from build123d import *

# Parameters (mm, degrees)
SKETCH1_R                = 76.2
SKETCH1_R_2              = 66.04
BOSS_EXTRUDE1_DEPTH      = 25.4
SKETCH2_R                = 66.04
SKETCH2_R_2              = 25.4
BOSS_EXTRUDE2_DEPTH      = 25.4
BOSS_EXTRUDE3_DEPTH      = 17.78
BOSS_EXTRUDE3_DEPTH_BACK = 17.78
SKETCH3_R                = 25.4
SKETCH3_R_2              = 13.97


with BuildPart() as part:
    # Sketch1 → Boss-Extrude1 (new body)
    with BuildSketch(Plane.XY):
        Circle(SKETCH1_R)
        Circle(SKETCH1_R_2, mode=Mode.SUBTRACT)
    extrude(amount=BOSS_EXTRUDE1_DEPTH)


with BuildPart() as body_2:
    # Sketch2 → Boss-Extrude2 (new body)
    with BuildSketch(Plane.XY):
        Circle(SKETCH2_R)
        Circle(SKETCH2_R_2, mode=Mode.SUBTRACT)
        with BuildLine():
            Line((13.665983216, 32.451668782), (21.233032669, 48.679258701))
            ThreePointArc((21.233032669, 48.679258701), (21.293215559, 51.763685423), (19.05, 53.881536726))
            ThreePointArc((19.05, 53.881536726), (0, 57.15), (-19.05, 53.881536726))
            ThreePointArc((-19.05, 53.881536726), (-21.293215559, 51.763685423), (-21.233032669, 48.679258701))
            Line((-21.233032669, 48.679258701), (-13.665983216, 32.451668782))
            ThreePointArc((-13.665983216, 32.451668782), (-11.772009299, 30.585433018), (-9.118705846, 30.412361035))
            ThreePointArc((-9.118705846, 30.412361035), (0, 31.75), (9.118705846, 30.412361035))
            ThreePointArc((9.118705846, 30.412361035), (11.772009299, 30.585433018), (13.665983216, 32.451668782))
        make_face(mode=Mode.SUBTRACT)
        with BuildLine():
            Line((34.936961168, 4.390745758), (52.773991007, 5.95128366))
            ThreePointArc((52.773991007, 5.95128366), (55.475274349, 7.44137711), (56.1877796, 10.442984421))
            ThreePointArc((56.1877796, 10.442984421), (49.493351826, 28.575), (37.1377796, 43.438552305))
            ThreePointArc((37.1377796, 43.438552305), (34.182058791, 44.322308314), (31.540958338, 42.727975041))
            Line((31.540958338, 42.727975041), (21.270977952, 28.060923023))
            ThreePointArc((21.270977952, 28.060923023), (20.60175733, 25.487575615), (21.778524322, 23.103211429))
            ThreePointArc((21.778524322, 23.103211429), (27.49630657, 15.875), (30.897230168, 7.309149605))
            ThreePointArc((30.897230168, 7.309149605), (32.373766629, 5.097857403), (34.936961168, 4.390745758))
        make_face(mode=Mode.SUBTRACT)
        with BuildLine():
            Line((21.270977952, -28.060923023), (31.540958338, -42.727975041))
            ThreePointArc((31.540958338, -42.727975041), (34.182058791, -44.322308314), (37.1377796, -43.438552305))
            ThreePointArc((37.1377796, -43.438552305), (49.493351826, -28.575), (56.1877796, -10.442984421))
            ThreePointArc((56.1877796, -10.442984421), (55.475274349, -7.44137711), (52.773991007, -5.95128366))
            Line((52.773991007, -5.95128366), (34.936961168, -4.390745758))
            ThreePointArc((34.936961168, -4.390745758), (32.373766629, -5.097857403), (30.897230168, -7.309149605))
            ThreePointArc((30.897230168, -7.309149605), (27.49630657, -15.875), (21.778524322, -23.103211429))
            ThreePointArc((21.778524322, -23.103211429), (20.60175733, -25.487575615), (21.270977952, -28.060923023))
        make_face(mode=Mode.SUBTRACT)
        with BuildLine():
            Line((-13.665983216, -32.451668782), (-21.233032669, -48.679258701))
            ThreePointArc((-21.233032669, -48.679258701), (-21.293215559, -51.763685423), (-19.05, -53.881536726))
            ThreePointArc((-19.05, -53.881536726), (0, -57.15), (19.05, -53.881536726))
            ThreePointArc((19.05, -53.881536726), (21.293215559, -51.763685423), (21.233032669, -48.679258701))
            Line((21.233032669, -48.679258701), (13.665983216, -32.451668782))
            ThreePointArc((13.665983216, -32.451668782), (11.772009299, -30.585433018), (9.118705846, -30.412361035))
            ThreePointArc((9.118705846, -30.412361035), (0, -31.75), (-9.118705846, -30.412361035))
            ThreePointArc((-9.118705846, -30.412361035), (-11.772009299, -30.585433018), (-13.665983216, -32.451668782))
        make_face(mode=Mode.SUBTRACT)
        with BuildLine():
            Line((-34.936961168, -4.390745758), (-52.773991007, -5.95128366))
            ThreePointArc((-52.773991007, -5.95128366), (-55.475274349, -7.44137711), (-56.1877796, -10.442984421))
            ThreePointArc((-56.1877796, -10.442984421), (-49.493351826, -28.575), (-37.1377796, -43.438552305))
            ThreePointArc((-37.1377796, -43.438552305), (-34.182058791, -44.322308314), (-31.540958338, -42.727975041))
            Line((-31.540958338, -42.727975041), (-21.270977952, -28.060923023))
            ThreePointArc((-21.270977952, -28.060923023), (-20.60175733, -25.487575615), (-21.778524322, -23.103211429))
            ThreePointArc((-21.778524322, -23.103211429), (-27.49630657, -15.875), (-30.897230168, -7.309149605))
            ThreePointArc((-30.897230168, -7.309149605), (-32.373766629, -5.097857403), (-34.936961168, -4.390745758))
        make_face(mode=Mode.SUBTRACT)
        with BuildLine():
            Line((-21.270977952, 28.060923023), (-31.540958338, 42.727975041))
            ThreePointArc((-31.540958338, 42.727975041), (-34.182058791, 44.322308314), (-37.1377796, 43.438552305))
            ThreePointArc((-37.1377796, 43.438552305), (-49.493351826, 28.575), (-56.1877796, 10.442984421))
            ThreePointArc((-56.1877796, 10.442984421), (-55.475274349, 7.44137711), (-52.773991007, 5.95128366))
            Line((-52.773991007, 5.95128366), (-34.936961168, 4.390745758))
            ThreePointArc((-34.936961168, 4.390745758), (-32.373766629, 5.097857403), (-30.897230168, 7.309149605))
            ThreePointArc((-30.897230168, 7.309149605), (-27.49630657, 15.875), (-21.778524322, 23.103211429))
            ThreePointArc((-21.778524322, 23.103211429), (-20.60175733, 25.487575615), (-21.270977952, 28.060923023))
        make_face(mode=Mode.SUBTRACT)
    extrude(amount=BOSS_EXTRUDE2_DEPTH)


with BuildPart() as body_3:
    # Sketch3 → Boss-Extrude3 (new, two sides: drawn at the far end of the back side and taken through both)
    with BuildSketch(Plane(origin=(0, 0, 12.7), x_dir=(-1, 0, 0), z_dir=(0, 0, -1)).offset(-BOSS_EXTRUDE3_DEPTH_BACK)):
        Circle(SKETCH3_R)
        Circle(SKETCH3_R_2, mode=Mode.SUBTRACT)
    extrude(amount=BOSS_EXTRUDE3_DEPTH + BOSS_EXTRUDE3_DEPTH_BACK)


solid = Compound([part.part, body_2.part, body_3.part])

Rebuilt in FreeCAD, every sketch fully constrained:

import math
import FreeCAD as App
import Part
import Sketcher
Q = App.Units.Quantity

doc = App.newDocument("Part")
body = doc.addObject("PartDesign::Body", "Body")

# Sketch on XY plane
sketch1 = body.newObject("Sketcher::SketchObject", "Sketch")
sketch1.AttachmentSupport = (doc.getObject("XY_Plane"), [""])
sketch1.MapMode = "FlatFace"
sketch1.addGeometry([
    Part.Circle(App.Vector(0, 0, 0), App.Vector(0, 0, 1), 76),
    Part.Circle(App.Vector(0, 0, 0), App.Vector(0, 0, 1), 66),
], False)
sketch1.addConstraint([
    Sketcher.Constraint("Coincident", 0, 3, -1, 1),
    Sketcher.Constraint("Coincident", 1, 3, -1, 1),
    Sketcher.Constraint("Diameter", 0, Q("6 in")),
    Sketcher.Constraint("Diameter", 1, Q("5.2 in")),
])
pad1 = body.newObject("PartDesign::Pad", "Pad")
pad1.Profile = sketch1
pad1.Length = Q("1 in")
body2 = doc.addObject("PartDesign::Body", "Body001")

# Sketch on XY plane
sketch2 = body2.newObject("Sketcher::SketchObject", "Sketch001")
sketch2.AttachmentSupport = (doc.getObject("XY_Plane001"), [""])
sketch2.MapMode = "FlatFace"
sketch2.addGeometry([
    Part.Circle(App.Vector(0, 0, 0), App.Vector(0, 0, 1), 66),  # 0
    Part.LineSegment(App.Vector(-52.8, -6, 0), App.Vector(-34.9, -4.4, 0)),  # 1
    Part.ArcOfCircle(Part.Circle(App.Vector(-34.6, -8.2, 0), App.Vector(0, 0, 1), 3.8), math.radians(13), math.radians(95)),  # 2
    Part.ArcOfCircle(Part.Circle(App.Vector(0, 0, 0), App.Vector(0, 0, 1), 31.7), math.radians(-167), math.radians(-133)),  # 3
    Part.ArcOfCircle(Part.Circle(App.Vector(-24.4, -25.9, 0), App.Vector(0, 0, 1), 3.8), math.radians(-35), math.radians(47)),  # 4
    Part.LineSegment(App.Vector(-21.3, -28.1, 0), App.Vector(-31.5, -42.7, 0)),  # 5
    Part.ArcOfCircle(Part.Circle(App.Vector(-34.7, -40.5, 0), App.Vector(0, 0, 1), 3.8), math.radians(-131), math.radians(-35)),  # 6
    Part.ArcOfCircle(Part.Circle(App.Vector(0, 0, 0), App.Vector(0, 0, 1), 57.2), math.radians(-169), math.radians(-131)),  # 7
    Part.ArcOfCircle(Part.Circle(App.Vector(-52.4, -9.7, 0), App.Vector(0, 0, 1), 3.8), math.radians(95), math.radians(191)),  # 8
    Part.LineSegment(App.Vector(-21.2, -48.7, 0), App.Vector(-13.7, -32.5, 0)),  # 9
    Part.ArcOfCircle(Part.Circle(App.Vector(-10.2, -34.1, 0), App.Vector(0, 0, 1), 3.8), math.radians(73), math.radians(155)),  # 10
    Part.ArcOfCircle(Part.Circle(App.Vector(0, 0, 0), App.Vector(0, 0, 1), 31.8), math.radians(-107), math.radians(-73)),  # 11
    Part.ArcOfCircle(Part.Circle(App.Vector(10.2, -34.1, 0), App.Vector(0, 0, 1), 3.8), math.radians(25), math.radians(107)),  # 12
    Part.LineSegment(App.Vector(13.7, -32.5, 0), App.Vector(21.2, -48.7, 0)),  # 13
    Part.ArcOfCircle(Part.Circle(App.Vector(17.8, -50.3, 0), App.Vector(0, 0, 1), 3.8), math.radians(-71), math.radians(25)),  # 14
    Part.ArcOfCircle(Part.Circle(App.Vector(0, 0, 0), App.Vector(0, 0, 1), 57.1), math.radians(-109), math.radians(-71)),  # 15
    Part.ArcOfCircle(Part.Circle(App.Vector(-17.8, -50.3, 0), App.Vector(0, 0, 1), 3.8), math.radians(155), math.radians(251)),  # 16
    Part.LineSegment(App.Vector(31.5, -42.7, 0), App.Vector(21.3, -28.1, 0)),  # 17
    Part.ArcOfCircle(Part.Circle(App.Vector(24.4, -25.9, 0), App.Vector(0, 0, 1), 3.8), math.radians(133), math.radians(215)),  # 18
    Part.ArcOfCircle(Part.Circle(App.Vector(0, 0, 0), App.Vector(0, 0, 1), 31.7), math.radians(-47), math.radians(-13)),  # 19
    Part.ArcOfCircle(Part.Circle(App.Vector(34.6, -8.2, 0), App.Vector(0, 0, 1), 3.8), math.radians(85), math.radians(167)),  # 20
    Part.LineSegment(App.Vector(34.9, -4.4, 0), App.Vector(52.8, -6, 0)),  # 21
    Part.ArcOfCircle(Part.Circle(App.Vector(52.4, -9.7, 0), App.Vector(0, 0, 1), 3.8), math.radians(-11), math.radians(85)),  # 22
    Part.ArcOfCircle(Part.Circle(App.Vector(0, 0, 0), App.Vector(0, 0, 1), 57.2), math.radians(-49), math.radians(-11)),  # 23
    Part.ArcOfCircle(Part.Circle(App.Vector(34.7, -40.5, 0), App.Vector(0, 0, 1), 3.8), math.radians(-145), math.radians(-49)),  # 24
    Part.LineSegment(App.Vector(-31.5, 42.7, 0), App.Vector(-21.3, 28.1, 0)),  # 25
    Part.ArcOfCircle(Part.Circle(App.Vector(-24.4, 25.9, 0), App.Vector(0, 0, 1), 3.8), math.radians(-47), math.radians(35)),  # 26
    Part.ArcOfCircle(Part.Circle(App.Vector(0, 0, 0), App.Vector(0, 0, 1), 31.7), math.radians(133), math.radians(167)),  # 27
    Part.ArcOfCircle(Part.Circle(App.Vector(-34.6, 8.2, 0), App.Vector(0, 0, 1), 3.8), math.radians(-95), math.radians(-13)),  # 28
    Part.LineSegment(App.Vector(-34.9, 4.4, 0), App.Vector(-52.8, 6, 0)),  # 29
    Part.ArcOfCircle(Part.Circle(App.Vector(-52.4, 9.7, 0), App.Vector(0, 0, 1), 3.8), math.radians(169), math.radians(265)),  # 30
    Part.ArcOfCircle(Part.Circle(App.Vector(0, 0, 0), App.Vector(0, 0, 1), 57.2), math.radians(131), math.radians(169)),  # 31
    Part.ArcOfCircle(Part.Circle(App.Vector(-34.7, 40.5, 0), App.Vector(0, 0, 1), 3.8), math.radians(35), math.radians(131)),  # 32
    Part.Circle(App.Vector(0, 0, 0), App.Vector(0, 0, 1), 25.4),  # 33
    Part.LineSegment(App.Vector(52.8, 6, 0), App.Vector(34.9, 4.4, 0)),  # 34
    Part.ArcOfCircle(Part.Circle(App.Vector(34.6, 8.2, 0), App.Vector(0, 0, 1), 3.8), math.radians(-167), math.radians(-85)),  # 35
    Part.ArcOfCircle(Part.Circle(App.Vector(0, 0, 0), App.Vector(0, 0, 1), 31.7), math.radians(13), math.radians(47)),  # 36
    Part.ArcOfCircle(Part.Circle(App.Vector(24.4, 25.9, 0), App.Vector(0, 0, 1), 3.8), math.radians(145), math.radians(227)),  # 37
    Part.LineSegment(App.Vector(21.3, 28.1, 0), App.Vector(31.5, 42.7, 0)),  # 38
    Part.ArcOfCircle(Part.Circle(App.Vector(34.7, 40.5, 0), App.Vector(0, 0, 1), 3.8), math.radians(49), math.radians(145)),  # 39
    Part.ArcOfCircle(Part.Circle(App.Vector(0, 0, 0), App.Vector(0, 0, 1), 57.2), math.radians(11), math.radians(49)),  # 40
    Part.ArcOfCircle(Part.Circle(App.Vector(52.4, 9.7, 0), App.Vector(0, 0, 1), 3.8), math.radians(-85), math.radians(11)),  # 41
    Part.LineSegment(App.Vector(21.2, 48.7, 0), App.Vector(13.7, 32.5, 0)),  # 42
    Part.ArcOfCircle(Part.Circle(App.Vector(10.2, 34.1, 0), App.Vector(0, 0, 1), 3.8), math.radians(-107), math.radians(-25)),  # 43
    Part.ArcOfCircle(Part.Circle(App.Vector(0, 0, 0), App.Vector(0, 0, 1), 31.8), math.radians(73), math.radians(107)),  # 44
    Part.ArcOfCircle(Part.Circle(App.Vector(-10.2, 34.1, 0), App.Vector(0, 0, 1), 3.8), math.radians(-155), math.radians(-73)),  # 45
    Part.LineSegment(App.Vector(-13.7, 32.5, 0), App.Vector(-21.2, 48.7, 0)),  # 46
    Part.ArcOfCircle(Part.Circle(App.Vector(-17.8, 50.3, 0), App.Vector(0, 0, 1), 3.8), math.radians(109), math.radians(205)),  # 47
    Part.ArcOfCircle(Part.Circle(App.Vector(0, 0, 0), App.Vector(0, 0, 1), 57.1), math.radians(71), math.radians(109)),  # 48
    Part.ArcOfCircle(Part.Circle(App.Vector(17.8, 50.3, 0), App.Vector(0, 0, 1), 3.8), math.radians(-25), math.radians(71)),  # 49
], False)
sketch2.addConstraint([
    Sketcher.Constraint("Tangent", 1, 2, 2, 2),
    Sketcher.Constraint("Tangent", 2, 1, 3, 1),
    Sketcher.Constraint("Tangent", 3, 2, 4, 2),
    Sketcher.Constraint("Tangent", 4, 1, 5, 1),
    Sketcher.Constraint("Tangent", 5, 2, 6, 2),
    Sketcher.Constraint("Tangent", 6, 1, 7, 2),
    Sketcher.Constraint("Tangent", 7, 1, 8, 2),
    Sketcher.Constraint("Tangent", 8, 1, 1, 1),
    Sketcher.Constraint("Tangent", 9, 2, 10, 2),
    Sketcher.Constraint("Tangent", 10, 1, 11, 1),
    Sketcher.Constraint("Tangent", 11, 2, 12, 2),
    Sketcher.Constraint("Tangent", 12, 1, 13, 1),
    Sketcher.Constraint("Tangent", 13, 2, 14, 2),
    Sketcher.Constraint("Tangent", 14, 1, 15, 2),
    Sketcher.Constraint("Tangent", 15, 1, 16, 2),
    Sketcher.Constraint("Tangent", 16, 1, 9, 1),
    Sketcher.Constraint("Tangent", 17, 2, 18, 2),
    Sketcher.Constraint("Tangent", 18, 1, 19, 1),
    Sketcher.Constraint("Tangent", 19, 2, 20, 2),
    Sketcher.Constraint("Tangent", 20, 1, 21, 1),
    Sketcher.Constraint("Tangent", 21, 2, 22, 2),
    Sketcher.Constraint("Tangent", 22, 1, 23, 2),
    Sketcher.Constraint("Tangent", 23, 1, 24, 2),
    Sketcher.Constraint("Tangent", 24, 1, 17, 1),
    Sketcher.Constraint("Tangent", 25, 2, 26, 2),
    Sketcher.Constraint("Tangent", 26, 1, 27, 1),
    Sketcher.Constraint("Tangent", 27, 2, 28, 2),
    Sketcher.Constraint("Tangent", 28, 1, 29, 1),
    Sketcher.Constraint("Tangent", 29, 2, 30, 2),
    Sketcher.Constraint("Tangent", 30, 1, 31, 2),
    Sketcher.Constraint("Tangent", 31, 1, 32, 2),
    Sketcher.Constraint("Tangent", 32, 1, 25, 1),
    Sketcher.Constraint("Tangent", 34, 2, 35, 2),
    Sketcher.Constraint("Tangent", 35, 1, 36, 1),
    Sketcher.Constraint("Tangent", 36, 2, 37, 2),
    Sketcher.Constraint("Tangent", 37, 1, 38, 1),
    Sketcher.Constraint("Tangent", 38, 2, 39, 2),
    Sketcher.Constraint("Tangent", 39, 1, 40, 2),
    Sketcher.Constraint("Tangent", 40, 1, 41, 2),
    Sketcher.Constraint("Tangent", 41, 1, 34, 1),
    Sketcher.Constraint("Tangent", 42, 2, 43, 2),
    Sketcher.Constraint("Tangent", 43, 1, 44, 1),
    Sketcher.Constraint("Tangent", 44, 2, 45, 2),
    Sketcher.Constraint("Tangent", 45, 1, 46, 1),
    Sketcher.Constraint("Tangent", 46, 2, 47, 2),
    Sketcher.Constraint("Tangent", 47, 1, 48, 2),
    Sketcher.Constraint("Tangent", 48, 1, 49, 2),
    Sketcher.Constraint("Tangent", 49, 1, 42, 1),
    Sketcher.Constraint("Coincident", 0, 3, -1, 1),
    Sketcher.Constraint("Coincident", 3, 3, -1, 1),
    Sketcher.Constraint("Coincident", 7, 3, -1, 1),
    Sketcher.Constraint("Coincident", 11, 3, -1, 1),
    Sketcher.Constraint("Coincident", 15, 3, -1, 1),
    Sketcher.Constraint("Coincident", 19, 3, -1, 1),
    Sketcher.Constraint("Coincident", 23, 3, -1, 1),
    Sketcher.Constraint("Coincident", 27, 3, -1, 1),
    Sketcher.Constraint("Coincident", 31, 3, -1, 1),
    Sketcher.Constraint("Coincident", 33, 3, -1, 1),
    Sketcher.Constraint("Coincident", 36, 3, -1, 1),
    Sketcher.Constraint("Coincident", 40, 3, -1, 1),
    Sketcher.Constraint("Coincident", 44, 3, -1, 1),
    Sketcher.Constraint("Coincident", 48, 3, -1, 1),
    Sketcher.Constraint("Equal", 2, 4),
    Sketcher.Constraint("Equal", 4, 6),
    Sketcher.Constraint("Equal", 6, 8),
    Sketcher.Constraint("Equal", 8, 10),
    Sketcher.Constraint("Equal", 3, 11),
    Sketcher.Constraint("Equal", 10, 12),
    Sketcher.Constraint("Equal", 12, 14),
    Sketcher.Constraint("Equal", 7, 15),
    Sketcher.Constraint("Equal", 14, 16),
    Sketcher.Constraint("Equal", 16, 18),
    Sketcher.Constraint("Equal", 11, 19),
    Sketcher.Constraint("Equal", 18, 20),
    Sketcher.Constraint("Equal", 20, 22),
    Sketcher.Constraint("Equal", 15, 23),
    Sketcher.Constraint("Equal", 22, 24),
    Sketcher.Constraint("Equal", 24, 26),
    Sketcher.Constraint("Equal", 19, 27),
    Sketcher.Constraint("Equal", 26, 28),
    Sketcher.Constraint("Equal", 28, 30),
    Sketcher.Constraint("Equal", 23, 31),
    Sketcher.Constraint("Equal", 30, 32),
    Sketcher.Constraint("Equal", 32, 35),
    Sketcher.Constraint("Equal", 27, 36),
    Sketcher.Constraint("Equal", 35, 37),
    Sketcher.Constraint("Equal", 37, 39),
    Sketcher.Constraint("Equal", 31, 40),
    Sketcher.Constraint("Equal", 39, 41),
    Sketcher.Constraint("Equal", 41, 43),
    Sketcher.Constraint("Equal", 36, 44),
    Sketcher.Constraint("Equal", 43, 45),
    Sketcher.Constraint("Equal", 45, 47),
    Sketcher.Constraint("Equal", 40, 48),
    Sketcher.Constraint("Equal", 47, 49),
    Sketcher.Constraint("Symmetric", 17, 2, 25, 2, -1, 1),
    Sketcher.Constraint("Symmetric", 20, 1, 28, 1, -1, 1),
    Sketcher.Constraint("Symmetric", 1, 2, 34, 2, -1, 1),
    Sketcher.Constraint("Symmetric", 4, 1, 37, 1, -1, 1),
    Sketcher.Constraint("Symmetric", 9, 2, 42, 2, -1, 1),
    Sketcher.Constraint("Symmetric", 12, 1, 45, 1, -1, 1),
    Sketcher.Constraint("Symmetric", 9, 2, 12, 1, -2),
    Sketcher.Constraint("Symmetric", 4, 1, 17, 2, -2),
    Sketcher.Constraint("Symmetric", 1, 2, 20, 1, -2),
    Sketcher.Constraint("Equal", 1, 5),
    Sketcher.Constraint("Equal", 5, 9),
    Sketcher.Constraint("Diameter", 33, Q("2 in")),
    Sketcher.Constraint("Diameter", 0, Q("5.2 in")),
    Sketcher.Constraint("Radius", 2, Q("0.15 in")),
    Sketcher.Constraint("Radius", 3, Q("1.25 in")),
    Sketcher.Constraint("Radius", 7, Q("2.25 in")),
    Sketcher.Constraint("Angle", 1, Q("5 deg")),
    Sketcher.Constraint("Angle", 5, Q("-125 deg")),
    Sketcher.Constraint("Angle", 9, Q("65 deg")),
    Sketcher.Constraint("DistanceX", -1, 1, 14, 3, Q("0.7 in")),
])
pad2 = body2.newObject("PartDesign::Pad", "Pad001")
pad2.Profile = sketch2
pad2.Length = Q("1 in")
body3 = doc.addObject("PartDesign::Body", "Body002")

# Sketch on XY plane
sketch3 = body3.newObject("Sketcher::SketchObject", "Sketch002")
sketch3.AttachmentSupport = (doc.getObject("XY_Plane002"), [""])
sketch3.MapMode = "FlatFace"
sketch3.AttachmentOffset = App.Placement(App.Vector(0, 0, 0.5 * 25.4), App.Rotation())
sketch3.addGeometry([
    Part.Circle(App.Vector(0, 0, 0), App.Vector(0, 0, 1), 25),
    Part.Circle(App.Vector(0, 0, 0), App.Vector(0, 0, 1), 14),
], False)
sketch3.addConstraint([
    Sketcher.Constraint("Coincident", 0, 3, -1, 1),
    Sketcher.Constraint("Coincident", 1, 3, -1, 1),
    Sketcher.Constraint("Diameter", 0, Q("2 in")),
    Sketcher.Constraint("Diameter", 1, Q("1.1 in")),
])
pad3 = body3.newObject("PartDesign::Pad", "Pad002")
pad3.Profile = sketch3
pad3.Type = "TwoLengths"
pad3.Length = Q("0.7 in")
pad3.Length2 = Q("0.7 in")
pad3.Reversed = True

doc.recompute()
